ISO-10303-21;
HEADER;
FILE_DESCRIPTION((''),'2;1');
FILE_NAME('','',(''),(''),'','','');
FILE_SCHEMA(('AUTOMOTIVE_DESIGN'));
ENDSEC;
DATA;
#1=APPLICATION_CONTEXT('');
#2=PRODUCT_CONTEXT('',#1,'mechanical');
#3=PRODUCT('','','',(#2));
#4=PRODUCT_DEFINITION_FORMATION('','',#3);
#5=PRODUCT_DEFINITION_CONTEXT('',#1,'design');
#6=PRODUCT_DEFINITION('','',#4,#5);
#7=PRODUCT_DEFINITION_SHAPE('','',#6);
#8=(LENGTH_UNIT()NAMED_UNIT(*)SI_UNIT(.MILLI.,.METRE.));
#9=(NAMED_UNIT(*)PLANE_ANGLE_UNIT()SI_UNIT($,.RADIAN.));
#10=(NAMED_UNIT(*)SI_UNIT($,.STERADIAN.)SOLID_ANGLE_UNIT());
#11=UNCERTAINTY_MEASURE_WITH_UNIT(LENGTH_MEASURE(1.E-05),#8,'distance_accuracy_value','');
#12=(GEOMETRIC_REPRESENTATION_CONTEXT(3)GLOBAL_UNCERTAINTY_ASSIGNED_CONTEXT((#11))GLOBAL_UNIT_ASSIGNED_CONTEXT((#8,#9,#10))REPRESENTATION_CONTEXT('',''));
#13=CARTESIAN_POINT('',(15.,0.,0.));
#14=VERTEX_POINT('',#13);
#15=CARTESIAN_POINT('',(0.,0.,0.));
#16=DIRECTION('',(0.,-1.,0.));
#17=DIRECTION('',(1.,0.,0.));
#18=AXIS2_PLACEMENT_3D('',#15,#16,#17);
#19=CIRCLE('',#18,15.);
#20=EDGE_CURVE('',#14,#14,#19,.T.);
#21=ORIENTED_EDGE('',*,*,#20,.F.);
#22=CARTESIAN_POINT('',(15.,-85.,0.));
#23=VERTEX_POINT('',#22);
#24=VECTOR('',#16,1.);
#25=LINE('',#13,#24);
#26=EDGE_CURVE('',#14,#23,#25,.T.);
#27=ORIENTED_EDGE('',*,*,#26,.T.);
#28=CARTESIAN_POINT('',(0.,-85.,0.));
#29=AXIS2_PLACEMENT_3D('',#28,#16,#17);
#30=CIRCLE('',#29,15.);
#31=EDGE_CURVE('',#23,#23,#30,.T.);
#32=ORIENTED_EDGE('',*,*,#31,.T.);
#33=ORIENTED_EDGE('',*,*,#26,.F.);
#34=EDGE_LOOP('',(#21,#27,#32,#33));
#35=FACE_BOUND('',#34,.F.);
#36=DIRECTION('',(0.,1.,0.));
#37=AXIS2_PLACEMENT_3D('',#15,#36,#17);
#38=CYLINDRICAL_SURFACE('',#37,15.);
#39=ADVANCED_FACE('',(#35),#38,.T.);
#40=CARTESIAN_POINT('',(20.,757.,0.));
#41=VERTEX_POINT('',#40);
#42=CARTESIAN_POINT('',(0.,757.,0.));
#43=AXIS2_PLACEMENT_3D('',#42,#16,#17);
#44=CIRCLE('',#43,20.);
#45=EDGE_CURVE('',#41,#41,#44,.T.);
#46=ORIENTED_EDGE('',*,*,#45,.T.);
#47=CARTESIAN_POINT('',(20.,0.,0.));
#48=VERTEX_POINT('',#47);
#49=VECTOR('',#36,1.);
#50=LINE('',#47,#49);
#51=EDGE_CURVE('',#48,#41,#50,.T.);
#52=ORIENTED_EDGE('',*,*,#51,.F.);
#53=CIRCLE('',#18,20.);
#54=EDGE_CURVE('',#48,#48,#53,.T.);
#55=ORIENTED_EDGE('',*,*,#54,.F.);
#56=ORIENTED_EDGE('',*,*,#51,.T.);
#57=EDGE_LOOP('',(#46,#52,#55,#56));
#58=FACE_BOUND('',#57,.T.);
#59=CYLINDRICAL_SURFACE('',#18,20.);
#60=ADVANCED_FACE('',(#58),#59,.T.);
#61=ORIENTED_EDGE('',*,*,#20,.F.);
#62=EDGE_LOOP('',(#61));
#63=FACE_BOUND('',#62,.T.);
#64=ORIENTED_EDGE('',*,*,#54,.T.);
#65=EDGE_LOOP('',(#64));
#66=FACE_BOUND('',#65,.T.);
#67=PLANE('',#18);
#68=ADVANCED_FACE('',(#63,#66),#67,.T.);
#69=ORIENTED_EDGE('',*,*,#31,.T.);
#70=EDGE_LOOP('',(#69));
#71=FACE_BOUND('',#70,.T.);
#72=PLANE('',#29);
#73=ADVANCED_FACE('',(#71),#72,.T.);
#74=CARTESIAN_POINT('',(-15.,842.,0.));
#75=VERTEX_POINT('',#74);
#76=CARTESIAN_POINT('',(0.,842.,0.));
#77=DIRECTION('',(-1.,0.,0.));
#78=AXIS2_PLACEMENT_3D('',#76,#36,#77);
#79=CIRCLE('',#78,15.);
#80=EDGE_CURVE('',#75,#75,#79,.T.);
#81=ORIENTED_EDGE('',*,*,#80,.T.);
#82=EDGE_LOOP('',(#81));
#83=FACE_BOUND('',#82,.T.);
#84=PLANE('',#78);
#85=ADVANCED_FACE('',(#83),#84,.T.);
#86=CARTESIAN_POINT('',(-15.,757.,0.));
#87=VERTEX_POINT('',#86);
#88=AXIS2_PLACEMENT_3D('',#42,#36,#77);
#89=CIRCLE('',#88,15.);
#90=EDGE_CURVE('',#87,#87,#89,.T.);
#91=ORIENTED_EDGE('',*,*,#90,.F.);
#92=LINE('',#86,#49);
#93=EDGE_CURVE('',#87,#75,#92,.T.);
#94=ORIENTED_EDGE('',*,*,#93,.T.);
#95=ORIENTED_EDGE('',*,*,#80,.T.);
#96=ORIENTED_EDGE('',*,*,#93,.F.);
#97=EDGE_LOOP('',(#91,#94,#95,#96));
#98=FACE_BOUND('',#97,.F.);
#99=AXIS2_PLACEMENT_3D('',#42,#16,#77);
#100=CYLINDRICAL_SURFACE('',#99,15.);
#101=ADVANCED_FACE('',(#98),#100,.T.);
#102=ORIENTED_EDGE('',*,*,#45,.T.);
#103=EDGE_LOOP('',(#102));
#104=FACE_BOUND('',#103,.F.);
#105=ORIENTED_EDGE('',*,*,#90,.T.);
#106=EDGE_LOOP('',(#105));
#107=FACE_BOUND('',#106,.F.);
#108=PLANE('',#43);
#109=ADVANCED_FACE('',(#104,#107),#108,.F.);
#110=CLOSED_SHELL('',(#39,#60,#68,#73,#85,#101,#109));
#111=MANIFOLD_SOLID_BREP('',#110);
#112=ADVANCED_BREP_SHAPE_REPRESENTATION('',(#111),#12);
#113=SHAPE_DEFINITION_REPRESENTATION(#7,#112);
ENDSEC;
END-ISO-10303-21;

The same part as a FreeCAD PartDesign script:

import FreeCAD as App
import Part
import Sketcher

V = App.Vector
Q = App.Units.Quantity

doc = App.newDocument("Part")
body = doc.addObject("PartDesign::Body", "Body")

# Sketch on XZ plane
sketch1 = body.newObject("Sketcher::SketchObject", "Sketch")
sketch1.AttachmentSupport = (doc.getObject("XZ_Plane"), [""])
sketch1.MapMode = "FlatFace"
sketch1.addGeometry(Part.Circle(V(0, 0, 0), V(0, 0, 1), 20), False)
sketch1.addConstraint([
    Sketcher.Constraint("Coincident", 0, 3, -1, 1),
    Sketcher.Constraint("Diameter", 0, Q("40 mm")),
])
pad1 = body.newObject("PartDesign::Pad", "Pad")
pad1.Profile = sketch1
pad1.Length = 757
pad1.Reversed = True

# Sketch on XZ plane
sketch2 = body.newObject("Sketcher::SketchObject", "Sketch001")
sketch2.AttachmentSupport = (doc.getObject("XZ_Plane"), [""])
sketch2.MapMode = "FlatFace"
sketch2.addGeometry(Part.Circle(V(0, 0, 0), V(0, 0, 1), 15), False)
sketch2.addConstraint([
    Sketcher.Constraint("Coincident", 0, 3, -1, 1),
    Sketcher.Constraint("Diameter", 0, Q("30 mm")),
])
pad2 = body.newObject("PartDesign::Pad", "Pad001")
pad2.Profile = sketch2
pad2.Length = 85

# Sketch on XZ plane
sketch3 = body.newObject("Sketcher::SketchObject", "Sketch002")
sketch3.AttachmentSupport = (doc.getObject("XZ_Plane"), [""])
sketch3.MapMode = "FlatFace"
sketch3.AttachmentOffset = App.Placement(V(0, 0, -757), App.Rotation())
sketch3.addGeometry(Part.Circle(V(0, 0, 0), V(0, 0, 1), 15), False)
sketch3.addConstraint([
    Sketcher.Constraint("Coincident", 0, 3, -1, 1),
    Sketcher.Constraint("Diameter", 0, Q("30 mm")),
])
pad3 = body.newObject("PartDesign::Pad", "Pad002")
pad3.Profile = sketch3
pad3.Length = 85
pad3.Reversed = True

doc.recompute()
